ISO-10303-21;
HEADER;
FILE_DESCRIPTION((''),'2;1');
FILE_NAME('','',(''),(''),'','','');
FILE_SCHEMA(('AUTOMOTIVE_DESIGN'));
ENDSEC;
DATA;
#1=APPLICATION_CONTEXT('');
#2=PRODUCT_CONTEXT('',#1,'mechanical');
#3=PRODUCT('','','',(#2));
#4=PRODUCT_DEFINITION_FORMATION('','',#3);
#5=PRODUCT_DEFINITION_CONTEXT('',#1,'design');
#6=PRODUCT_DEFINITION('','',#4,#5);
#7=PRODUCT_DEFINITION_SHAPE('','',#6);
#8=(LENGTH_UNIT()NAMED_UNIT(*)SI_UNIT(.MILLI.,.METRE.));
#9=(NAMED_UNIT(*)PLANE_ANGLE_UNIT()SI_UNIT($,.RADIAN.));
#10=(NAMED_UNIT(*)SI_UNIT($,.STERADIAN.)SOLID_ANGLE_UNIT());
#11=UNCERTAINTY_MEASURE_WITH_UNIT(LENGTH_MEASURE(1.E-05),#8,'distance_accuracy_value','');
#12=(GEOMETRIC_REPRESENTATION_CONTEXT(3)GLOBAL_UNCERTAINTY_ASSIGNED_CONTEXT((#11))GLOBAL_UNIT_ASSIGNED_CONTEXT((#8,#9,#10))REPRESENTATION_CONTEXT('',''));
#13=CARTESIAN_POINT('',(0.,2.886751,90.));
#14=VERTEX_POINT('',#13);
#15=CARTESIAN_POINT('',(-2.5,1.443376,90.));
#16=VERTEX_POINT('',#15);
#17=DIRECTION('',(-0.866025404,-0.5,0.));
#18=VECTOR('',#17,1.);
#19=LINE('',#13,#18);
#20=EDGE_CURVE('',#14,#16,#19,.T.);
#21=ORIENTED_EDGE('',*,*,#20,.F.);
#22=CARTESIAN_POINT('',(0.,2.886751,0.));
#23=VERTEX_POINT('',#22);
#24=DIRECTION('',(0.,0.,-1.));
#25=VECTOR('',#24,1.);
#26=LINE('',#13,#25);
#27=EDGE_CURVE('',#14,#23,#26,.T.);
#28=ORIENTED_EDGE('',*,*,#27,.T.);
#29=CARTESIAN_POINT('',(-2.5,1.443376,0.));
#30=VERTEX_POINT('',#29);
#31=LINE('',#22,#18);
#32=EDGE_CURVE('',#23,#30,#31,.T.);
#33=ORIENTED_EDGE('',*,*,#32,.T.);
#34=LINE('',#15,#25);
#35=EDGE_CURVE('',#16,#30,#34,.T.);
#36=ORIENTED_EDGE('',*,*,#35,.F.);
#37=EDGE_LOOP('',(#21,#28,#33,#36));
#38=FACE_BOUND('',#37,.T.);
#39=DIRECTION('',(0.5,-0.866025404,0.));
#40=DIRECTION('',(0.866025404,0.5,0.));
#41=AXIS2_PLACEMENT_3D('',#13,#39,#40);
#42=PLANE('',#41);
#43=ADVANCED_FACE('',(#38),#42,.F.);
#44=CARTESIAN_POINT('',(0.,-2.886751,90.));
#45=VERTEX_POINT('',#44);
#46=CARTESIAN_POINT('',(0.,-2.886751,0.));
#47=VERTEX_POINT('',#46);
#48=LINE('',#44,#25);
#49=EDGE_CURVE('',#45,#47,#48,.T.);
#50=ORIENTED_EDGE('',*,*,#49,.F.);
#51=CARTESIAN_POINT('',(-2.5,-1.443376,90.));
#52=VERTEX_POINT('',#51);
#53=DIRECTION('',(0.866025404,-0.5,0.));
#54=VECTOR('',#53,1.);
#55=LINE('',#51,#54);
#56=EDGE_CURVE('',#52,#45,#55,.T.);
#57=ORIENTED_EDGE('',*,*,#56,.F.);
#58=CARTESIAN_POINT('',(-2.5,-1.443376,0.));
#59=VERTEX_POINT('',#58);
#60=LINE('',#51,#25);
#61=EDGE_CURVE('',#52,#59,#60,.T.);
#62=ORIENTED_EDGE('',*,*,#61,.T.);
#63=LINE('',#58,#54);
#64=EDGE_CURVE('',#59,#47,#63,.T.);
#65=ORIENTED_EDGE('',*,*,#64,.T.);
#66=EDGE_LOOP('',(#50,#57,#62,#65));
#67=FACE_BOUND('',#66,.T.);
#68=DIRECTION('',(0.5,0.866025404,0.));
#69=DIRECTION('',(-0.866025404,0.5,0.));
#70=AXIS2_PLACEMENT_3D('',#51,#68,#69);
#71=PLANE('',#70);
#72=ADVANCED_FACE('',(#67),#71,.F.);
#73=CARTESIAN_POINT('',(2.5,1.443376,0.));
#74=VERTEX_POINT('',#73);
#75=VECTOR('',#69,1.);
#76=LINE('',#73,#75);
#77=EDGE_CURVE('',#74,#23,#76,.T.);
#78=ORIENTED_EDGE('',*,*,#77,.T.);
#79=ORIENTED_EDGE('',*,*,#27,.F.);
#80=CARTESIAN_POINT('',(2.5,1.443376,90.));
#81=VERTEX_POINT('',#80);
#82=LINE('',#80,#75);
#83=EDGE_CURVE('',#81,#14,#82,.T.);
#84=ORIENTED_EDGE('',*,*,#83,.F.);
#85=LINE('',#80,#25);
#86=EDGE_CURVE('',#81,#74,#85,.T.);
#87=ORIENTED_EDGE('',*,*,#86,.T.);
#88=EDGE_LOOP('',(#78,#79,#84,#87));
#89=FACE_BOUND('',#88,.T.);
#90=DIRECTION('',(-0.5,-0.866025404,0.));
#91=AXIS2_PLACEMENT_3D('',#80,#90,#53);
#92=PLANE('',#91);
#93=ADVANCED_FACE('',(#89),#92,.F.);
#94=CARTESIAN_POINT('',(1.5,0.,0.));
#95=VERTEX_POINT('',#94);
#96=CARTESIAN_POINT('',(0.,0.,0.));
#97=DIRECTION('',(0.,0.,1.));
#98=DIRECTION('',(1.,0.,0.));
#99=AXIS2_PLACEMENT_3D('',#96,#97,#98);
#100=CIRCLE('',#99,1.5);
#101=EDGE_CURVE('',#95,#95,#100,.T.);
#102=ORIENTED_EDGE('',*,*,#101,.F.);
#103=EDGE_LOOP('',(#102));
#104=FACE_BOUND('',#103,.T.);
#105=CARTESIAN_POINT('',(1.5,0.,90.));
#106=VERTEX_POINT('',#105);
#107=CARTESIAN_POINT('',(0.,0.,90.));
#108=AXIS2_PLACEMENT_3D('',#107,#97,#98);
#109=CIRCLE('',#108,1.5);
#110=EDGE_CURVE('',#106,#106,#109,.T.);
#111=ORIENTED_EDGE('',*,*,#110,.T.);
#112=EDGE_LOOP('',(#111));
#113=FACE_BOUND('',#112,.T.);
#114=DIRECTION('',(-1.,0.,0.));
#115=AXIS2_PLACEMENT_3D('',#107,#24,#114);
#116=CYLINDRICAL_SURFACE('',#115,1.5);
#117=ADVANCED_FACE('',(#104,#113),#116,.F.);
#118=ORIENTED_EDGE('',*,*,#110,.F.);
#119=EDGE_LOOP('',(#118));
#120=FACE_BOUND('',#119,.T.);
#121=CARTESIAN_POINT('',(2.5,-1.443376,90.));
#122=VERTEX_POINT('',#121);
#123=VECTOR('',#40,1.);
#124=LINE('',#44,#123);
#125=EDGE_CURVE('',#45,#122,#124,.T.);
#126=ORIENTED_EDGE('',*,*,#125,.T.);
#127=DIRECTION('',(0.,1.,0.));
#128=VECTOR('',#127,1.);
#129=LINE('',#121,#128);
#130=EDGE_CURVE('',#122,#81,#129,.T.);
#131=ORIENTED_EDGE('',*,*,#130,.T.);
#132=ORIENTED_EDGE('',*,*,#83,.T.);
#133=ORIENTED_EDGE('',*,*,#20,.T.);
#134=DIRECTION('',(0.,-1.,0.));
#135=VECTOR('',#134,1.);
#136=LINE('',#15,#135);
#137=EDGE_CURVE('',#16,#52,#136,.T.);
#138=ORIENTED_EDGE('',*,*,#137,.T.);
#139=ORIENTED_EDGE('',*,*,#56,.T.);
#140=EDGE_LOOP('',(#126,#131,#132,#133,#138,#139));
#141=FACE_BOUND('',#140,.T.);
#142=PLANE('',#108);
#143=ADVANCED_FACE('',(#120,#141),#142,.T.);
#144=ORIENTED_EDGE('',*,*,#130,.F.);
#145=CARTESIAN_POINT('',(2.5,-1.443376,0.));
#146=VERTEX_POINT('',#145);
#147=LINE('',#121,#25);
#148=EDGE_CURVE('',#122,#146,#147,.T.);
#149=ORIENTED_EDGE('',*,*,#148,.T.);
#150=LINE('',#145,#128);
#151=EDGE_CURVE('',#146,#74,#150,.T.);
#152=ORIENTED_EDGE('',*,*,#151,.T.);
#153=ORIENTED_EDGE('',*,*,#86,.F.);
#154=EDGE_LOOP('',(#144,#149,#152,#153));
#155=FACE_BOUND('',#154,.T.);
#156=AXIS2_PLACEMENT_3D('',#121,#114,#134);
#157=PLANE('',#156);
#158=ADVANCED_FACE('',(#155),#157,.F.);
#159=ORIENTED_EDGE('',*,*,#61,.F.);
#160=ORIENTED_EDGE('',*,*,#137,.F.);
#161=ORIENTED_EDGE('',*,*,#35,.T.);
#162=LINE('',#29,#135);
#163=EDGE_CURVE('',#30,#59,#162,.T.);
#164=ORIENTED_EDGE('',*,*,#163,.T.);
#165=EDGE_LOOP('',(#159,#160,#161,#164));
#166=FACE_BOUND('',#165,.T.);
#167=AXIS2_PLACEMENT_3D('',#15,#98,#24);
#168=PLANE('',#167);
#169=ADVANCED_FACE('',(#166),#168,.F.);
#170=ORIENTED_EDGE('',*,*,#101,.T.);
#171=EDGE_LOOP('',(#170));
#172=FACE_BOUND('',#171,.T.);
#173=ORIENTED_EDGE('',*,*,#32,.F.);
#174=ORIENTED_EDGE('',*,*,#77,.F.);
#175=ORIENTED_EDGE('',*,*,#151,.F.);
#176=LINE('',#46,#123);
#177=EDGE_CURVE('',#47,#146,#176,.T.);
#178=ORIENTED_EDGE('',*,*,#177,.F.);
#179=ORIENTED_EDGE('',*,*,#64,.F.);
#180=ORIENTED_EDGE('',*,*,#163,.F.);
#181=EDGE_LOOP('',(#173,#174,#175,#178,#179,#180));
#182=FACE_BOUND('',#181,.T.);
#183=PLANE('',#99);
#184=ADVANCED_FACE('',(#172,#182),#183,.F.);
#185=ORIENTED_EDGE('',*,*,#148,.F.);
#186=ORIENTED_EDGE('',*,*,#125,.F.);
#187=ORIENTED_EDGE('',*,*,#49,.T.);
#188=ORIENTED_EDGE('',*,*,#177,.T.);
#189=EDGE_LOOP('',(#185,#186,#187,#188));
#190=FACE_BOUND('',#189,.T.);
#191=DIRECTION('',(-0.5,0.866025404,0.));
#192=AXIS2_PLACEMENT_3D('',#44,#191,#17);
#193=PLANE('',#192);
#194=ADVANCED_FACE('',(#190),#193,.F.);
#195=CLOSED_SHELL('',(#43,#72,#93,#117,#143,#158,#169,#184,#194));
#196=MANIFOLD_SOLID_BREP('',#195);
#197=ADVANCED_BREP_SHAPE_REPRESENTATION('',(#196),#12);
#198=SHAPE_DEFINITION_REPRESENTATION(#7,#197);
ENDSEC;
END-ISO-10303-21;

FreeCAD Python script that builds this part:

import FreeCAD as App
import Part
import Sketcher
from FreeCAD import Vector
Q = App.Units.Quantity


def add_polygon(sketch, points):
    """Adds a closed chain of lines whose ends are joined by coincident constraints."""
    first, n = sketch.GeometryCount, len(points)
    for a, b in zip(points, points[1:] + points[:1]):
        sketch.addGeometry(Part.LineSegment(App.Vector(*a, 0), App.Vector(*b, 0)), False)
    for i in range(n):
        sketch.addConstraint(Sketcher.Constraint("Coincident", first + i, 2, first + (i + 1) % n, 1))

doc = App.newDocument("Part")
body = doc.addObject("PartDesign::Body", "Body")

# Sketch on XY plane
sketch1 = body.newObject("Sketcher::SketchObject", "Sketch")
sketch1.AttachmentSupport = (doc.getObject("XY_Plane"), [""])
sketch1.MapMode = "FlatFace"
add_polygon(sketch1, [(0, 2.9), (-2.5, 1.4), (-2.5, -1.4), (0, -2.9), (2.5, -1.4), (2.5, 1.4)])  # lines 0-5
sketch1.addGeometry(Part.Circle(Vector(0, 0, 0), Vector(0, 0, 1), 1.5), False)  # 6
sketch1.addConstraint([
    Sketcher.Constraint("Vertical", 1),
    Sketcher.Constraint("Vertical", 4),
    Sketcher.Constraint("Coincident", 6, 3, -1, 1),
    Sketcher.Constraint("Symmetric", 0, 2, 3, 2, -1, 1),
    Sketcher.Constraint("Symmetric", 2, 2, 5, 2, -1, 1),
    Sketcher.Constraint("PointOnObject", 2, 2, -2),
    Sketcher.Constraint("Parallel", 2, 5),
    Sketcher.Constraint("Horizontal", 1, 2, 3, 2),
    Sketcher.Constraint("Diameter", 6, Q("3 mm")),
    Sketcher.Constraint("Angle", 0, Q("-150 deg")),
    Sketcher.Constraint("DistanceX", 1, 2, 3, 2, Q("5 mm")),
    Sketcher.Constraint("DistanceY", 1, 2, 1, 1, Q("2.886751 mm")),
])
pad1 = body.newObject("PartDesign::Pad", "Pad")
pad1.Profile = sketch1
pad1.Length = 90

doc.recompute()
